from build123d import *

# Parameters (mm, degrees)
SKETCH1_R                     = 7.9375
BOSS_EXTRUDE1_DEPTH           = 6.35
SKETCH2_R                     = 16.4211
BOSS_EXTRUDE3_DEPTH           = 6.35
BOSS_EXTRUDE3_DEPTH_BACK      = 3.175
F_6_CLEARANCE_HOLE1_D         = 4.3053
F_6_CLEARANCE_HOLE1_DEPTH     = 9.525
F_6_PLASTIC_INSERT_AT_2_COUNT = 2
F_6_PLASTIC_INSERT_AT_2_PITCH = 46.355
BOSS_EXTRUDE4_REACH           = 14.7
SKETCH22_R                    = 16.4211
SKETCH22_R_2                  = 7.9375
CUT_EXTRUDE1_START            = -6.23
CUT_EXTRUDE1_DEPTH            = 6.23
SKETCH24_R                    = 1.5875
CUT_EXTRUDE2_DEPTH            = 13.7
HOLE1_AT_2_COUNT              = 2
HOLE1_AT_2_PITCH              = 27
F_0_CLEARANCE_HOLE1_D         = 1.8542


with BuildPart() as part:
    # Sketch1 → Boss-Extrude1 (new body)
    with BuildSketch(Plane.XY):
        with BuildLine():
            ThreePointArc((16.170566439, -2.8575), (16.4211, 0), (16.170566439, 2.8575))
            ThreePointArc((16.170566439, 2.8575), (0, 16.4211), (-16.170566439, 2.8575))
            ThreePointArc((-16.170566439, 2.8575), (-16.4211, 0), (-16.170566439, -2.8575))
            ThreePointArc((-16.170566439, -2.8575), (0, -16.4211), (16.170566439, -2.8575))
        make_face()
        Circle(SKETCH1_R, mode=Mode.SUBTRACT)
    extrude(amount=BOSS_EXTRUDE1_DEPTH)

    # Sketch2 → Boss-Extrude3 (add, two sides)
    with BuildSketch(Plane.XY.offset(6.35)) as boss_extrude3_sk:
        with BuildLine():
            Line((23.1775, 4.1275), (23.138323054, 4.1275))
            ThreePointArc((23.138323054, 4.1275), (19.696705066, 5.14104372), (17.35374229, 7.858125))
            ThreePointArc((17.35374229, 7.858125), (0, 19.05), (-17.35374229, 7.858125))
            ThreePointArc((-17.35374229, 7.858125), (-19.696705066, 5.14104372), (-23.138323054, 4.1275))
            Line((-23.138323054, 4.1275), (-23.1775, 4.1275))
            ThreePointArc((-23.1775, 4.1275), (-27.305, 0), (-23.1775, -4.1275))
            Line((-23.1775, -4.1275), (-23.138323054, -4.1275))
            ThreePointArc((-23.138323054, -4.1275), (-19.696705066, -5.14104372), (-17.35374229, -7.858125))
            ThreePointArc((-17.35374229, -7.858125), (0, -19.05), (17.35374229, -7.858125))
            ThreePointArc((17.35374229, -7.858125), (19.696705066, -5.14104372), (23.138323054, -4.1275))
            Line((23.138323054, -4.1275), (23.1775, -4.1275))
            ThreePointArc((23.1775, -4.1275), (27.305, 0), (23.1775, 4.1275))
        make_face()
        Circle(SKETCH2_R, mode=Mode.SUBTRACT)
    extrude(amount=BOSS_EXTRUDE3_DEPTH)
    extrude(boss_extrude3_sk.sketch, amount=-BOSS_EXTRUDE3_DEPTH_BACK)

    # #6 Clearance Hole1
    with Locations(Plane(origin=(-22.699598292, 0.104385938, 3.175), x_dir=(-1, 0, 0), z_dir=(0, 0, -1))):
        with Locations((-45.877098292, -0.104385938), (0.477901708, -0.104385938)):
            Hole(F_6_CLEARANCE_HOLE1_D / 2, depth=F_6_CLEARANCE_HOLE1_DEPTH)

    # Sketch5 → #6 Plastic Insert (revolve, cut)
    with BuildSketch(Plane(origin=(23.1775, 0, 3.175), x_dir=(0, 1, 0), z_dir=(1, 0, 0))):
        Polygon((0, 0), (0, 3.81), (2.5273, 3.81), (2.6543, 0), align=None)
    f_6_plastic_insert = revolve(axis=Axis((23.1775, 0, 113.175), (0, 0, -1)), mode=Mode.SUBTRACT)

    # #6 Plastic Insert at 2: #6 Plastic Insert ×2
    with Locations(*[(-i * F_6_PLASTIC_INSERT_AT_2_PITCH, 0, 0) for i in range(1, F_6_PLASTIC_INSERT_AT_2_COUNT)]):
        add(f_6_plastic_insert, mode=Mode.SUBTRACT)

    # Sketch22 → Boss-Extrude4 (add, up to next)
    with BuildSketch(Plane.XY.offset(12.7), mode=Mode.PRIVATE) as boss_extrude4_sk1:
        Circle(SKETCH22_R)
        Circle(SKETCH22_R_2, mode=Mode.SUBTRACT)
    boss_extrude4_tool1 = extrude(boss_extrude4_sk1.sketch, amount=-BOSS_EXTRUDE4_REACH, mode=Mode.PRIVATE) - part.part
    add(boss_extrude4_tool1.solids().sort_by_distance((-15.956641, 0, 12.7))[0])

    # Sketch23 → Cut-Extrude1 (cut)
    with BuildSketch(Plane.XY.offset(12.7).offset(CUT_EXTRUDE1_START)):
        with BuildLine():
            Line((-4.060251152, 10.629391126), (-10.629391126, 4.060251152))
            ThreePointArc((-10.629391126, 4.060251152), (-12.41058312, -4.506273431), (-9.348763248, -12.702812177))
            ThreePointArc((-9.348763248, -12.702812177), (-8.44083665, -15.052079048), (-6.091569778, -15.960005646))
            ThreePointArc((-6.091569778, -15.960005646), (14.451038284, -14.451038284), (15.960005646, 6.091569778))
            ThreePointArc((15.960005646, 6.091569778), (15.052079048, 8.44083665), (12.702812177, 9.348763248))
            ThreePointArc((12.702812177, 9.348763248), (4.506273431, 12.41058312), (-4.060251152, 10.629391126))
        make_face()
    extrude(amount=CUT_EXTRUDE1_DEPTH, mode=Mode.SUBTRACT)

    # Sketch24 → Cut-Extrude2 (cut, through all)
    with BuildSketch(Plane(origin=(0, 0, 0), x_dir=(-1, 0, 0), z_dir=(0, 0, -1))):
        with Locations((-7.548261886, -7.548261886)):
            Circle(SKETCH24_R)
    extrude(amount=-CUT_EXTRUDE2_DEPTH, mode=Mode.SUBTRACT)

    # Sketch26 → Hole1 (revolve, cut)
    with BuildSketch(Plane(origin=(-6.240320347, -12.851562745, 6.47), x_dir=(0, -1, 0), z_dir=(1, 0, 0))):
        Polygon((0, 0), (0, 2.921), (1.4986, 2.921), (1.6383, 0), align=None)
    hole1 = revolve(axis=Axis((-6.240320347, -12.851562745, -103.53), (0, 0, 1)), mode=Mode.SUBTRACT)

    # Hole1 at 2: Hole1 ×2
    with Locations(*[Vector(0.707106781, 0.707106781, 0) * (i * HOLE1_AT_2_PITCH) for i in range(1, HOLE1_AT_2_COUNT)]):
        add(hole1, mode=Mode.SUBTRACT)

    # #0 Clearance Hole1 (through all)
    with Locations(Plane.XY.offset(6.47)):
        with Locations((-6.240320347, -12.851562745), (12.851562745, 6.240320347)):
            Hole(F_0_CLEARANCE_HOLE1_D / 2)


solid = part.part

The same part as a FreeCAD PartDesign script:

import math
import FreeCAD as App
import Part
import Sketcher

V = App.Vector
Q = App.Units.Quantity

doc = App.newDocument("Part")
body = doc.addObject("PartDesign::Body", "Body")

sketch1 = doc.addObject("Sketcher::SketchObject", "Sketch")
body.addObject(sketch1)
sketch1.AttachmentSupport = (doc.XY_Plane, [""])
sketch1.MapMode = "FlatFace"
sketch1.addGeometry([
    Part.ArcOfCircle(Part.Circle(V(0, 0, 0), V(0, 0, 1), 16), math.radians(-10), math.radians(10)),
    Part.ArcOfCircle(Part.Circle(V(0, 0, 0), V(0, 0, 1), 16), math.radians(10), math.radians(170)),
    Part.ArcOfCircle(Part.Circle(V(0, 0, 0), V(0, 0, 1), 16), math.radians(170), math.radians(190)),
    Part.ArcOfCircle(Part.Circle(V(0, 0, 0), V(0, 0, 1), 16), math.radians(-170), math.radians(-10)),
    Part.Circle(V(0, 0, 0), V(0, 0, 1), 8),
], False)
sketch1.addConstraint([
    Sketcher.Constraint("Tangent", 0, 2, 1, 1),
    Sketcher.Constraint("Tangent", 1, 2, 2, 1),
    Sketcher.Constraint("Tangent", 2, 2, 3, 1),
    Sketcher.Constraint("Tangent", 3, 2, 0, 1),
    Sketcher.Constraint("Coincident", 0, 3, -1, 1),
    Sketcher.Constraint("Coincident", 4, 3, -1, 1),
    Sketcher.Constraint("Equal", 0, 1),
    Sketcher.Constraint("Horizontal", 0, 2, 1, 2),
    Sketcher.Constraint("Horizontal", 2, 2, 3, 2),
    Sketcher.Constraint("Vertical", 1, 2, 2, 2),
    Sketcher.Constraint("Diameter", 4, Q("0.625 in")),
    Sketcher.Constraint("Radius", 0, Q("0.6465 in")),
    Sketcher.Constraint("DistanceY", 2, 2, 1, 2, Q("0.225 in")),
])
pad1 = doc.addObject("PartDesign::Pad", "Pad")
body.addObject(pad1)
pad1.Profile = sketch1
pad1.Length = Q("0.25 in")

sketch2 = doc.addObject("Sketcher::SketchObject", "Sketch001")
body.addObject(sketch2)
sketch2.AttachmentSupport = (doc.XY_Plane, [""])
sketch2.MapMode = "FlatFace"
sketch2.AttachmentOffset = App.Placement(V(0, 0, 0.25 * 25.4), App.Rotation())
sketch2.addGeometry([
    Part.LineSegment(V(23.177, 4.128, 0), V(23.138, 4.128, 0)),
    Part.ArcOfCircle(Part.Circle(V(23.138, 10.477, 0), V(0, 0, 1), 6.35), math.radians(-156), math.radians(-90)),
    Part.ArcOfCircle(Part.Circle(V(0, 0, 0), V(0, 0, 1), 19.05), math.radians(24), math.radians(156)),
    Part.ArcOfCircle(Part.Circle(V(-23.138, 10.477, 0), V(0, 0, 1), 6.35), math.radians(-90), math.radians(-24)),
    Part.LineSegment(V(-23.138, 4.128, 0), V(-23.177, 4.128, 0)),
    Part.ArcOfCircle(Part.Circle(V(-23.177, 0, 0), V(0, 0, 1), 4.128), math.radians(90), math.radians(270)),
    Part.LineSegment(V(-23.177, -4.128, 0), V(-23.138, -4.128, 0)),
    Part.ArcOfCircle(Part.Circle(V(-23.138, -10.477, 0), V(0, 0, 1), 6.35), math.radians(24), math.radians(90)),
    Part.ArcOfCircle(Part.Circle(V(0, 0, 0), V(0, 0, 1), 19.05), math.radians(-156), math.radians(-24)),
    Part.ArcOfCircle(Part.Circle(V(23.138, -10.477, 0), V(0, 0, 1), 6.35), math.radians(90), math.radians(156)),
    Part.LineSegment(V(23.138, -4.128, 0), V(23.177, -4.128, 0)),
    Part.ArcOfCircle(Part.Circle(V(23.177, 0, 0), V(0, 0, 1), 4.128), math.radians(-90), math.radians(90)),
    Part.Circle(V(0, 0, 0), V(0, 0, 1), 16.421),
], False)
sketch2.addConstraint([
    Sketcher.Constraint("Tangent", 0, 2, 1, 2),
    Sketcher.Constraint("Tangent", 1, 1, 2, 1),
    Sketcher.Constraint("Tangent", 2, 2, 3, 2),
    Sketcher.Constraint("Tangent", 3, 1, 4, 1),
    Sketcher.Constraint("Tangent", 4, 2, 5, 1),
    Sketcher.Constraint("Tangent", 5, 2, 6, 1),
    Sketcher.Constraint("Tangent", 6, 2, 7, 2),
    Sketcher.Constraint("Tangent", 7, 1, 8, 1),
    Sketcher.Constraint("Tangent", 8, 2, 9, 2),
    Sketcher.Constraint("Tangent", 9, 1, 10, 1),
    Sketcher.Constraint("Tangent", 10, 2, 11, 1),
    Sketcher.Constraint("Tangent", 11, 2, 0, 1),
    Sketcher.Constraint("Horizontal", 0),
    Sketcher.Constraint("Horizontal", 4),
    Sketcher.Constraint("Horizontal", 6),
    Sketcher.Constraint("Horizontal", 10),
    Sketcher.Constraint("Coincident", 2, 3, -1, 1),
    Sketcher.Constraint("Coincident", 8, 3, -1, 1),
    Sketcher.Constraint("Coincident", 12, 3, -1, 1),
    Sketcher.Constraint("Equal", 1, 3),
    Sketcher.Constraint("Equal", 3, 7),
    Sketcher.Constraint("Equal", 2, 8),
    Sketcher.Constraint("Equal", 7, 9),
    Sketcher.Constraint("Equal", 5, 11),
    Sketcher.Constraint("Symmetric", 5, 3, 11, 3, -1, 1),
    Sketcher.Constraint("PointOnObject", 5, 3, -1),
    Sketcher.Constraint("Radius", 1, Q("0.25 in")),
    Sketcher.Constraint("Radius", 2, Q("0.75 in")),
    Sketcher.Constraint("Diameter", 12, Q("1.293 in")),
    Sketcher.Constraint("Radius", 5, Q("0.1625 in")),
    Sketcher.Constraint("DistanceX", 5, 3, 11, 3, Q("1.825 in")),
])
pad2 = doc.addObject("PartDesign::Pad", "Pad001")
body.addObject(pad2)
pad2.Profile = sketch2
pad2.Type = "TwoLengths"
pad2.Length = Q("0.25 in")
pad2.Length2 = Q("0.125 in")

sketch3 = doc.addObject("Sketcher::SketchObject", "Sketch002")
body.addObject(sketch3)
sketch3.AttachmentSupport = (doc.XY_Plane, [""])
sketch3.MapMode = "FlatFace"
sketch3.AttachmentOffset = App.Placement(V(0, 0, 0.125 * 25.4), App.Rotation())
sketch3.addGeometry([
    Part.Circle(V(23.2, 0, 0), V(0, 0, 1), 2.2),
    Part.Circle(V(-23.2, 0, 0), V(0, 0, 1), 2.2),
], False)
sketch3.addConstraint([
    Sketcher.Constraint("Equal", 0, 1),
    Sketcher.Constraint("Symmetric", 0, 3, 1, 3, -1, 1),
    Sketcher.Constraint("PointOnObject", 0, 3, -1),
    Sketcher.Constraint("Diameter", 0, Q("0.1695 in")),
    Sketcher.Constraint("DistanceX", 1, 3, 0, 3, Q("1.825 in")),
])
doc.recompute()
hole = doc.addObject("PartDesign::Hole", "Hole")
body.addObject(hole)
hole.Profile = sketch3
hole.ThreadType = "None"
hole.Diameter = Q("0.1695 in")
hole.DepthType = "Dimension"
hole.Depth = Q("0.375 in")
hole.DrillPoint = "Flat"
hole.Reversed = True

sketch4 = doc.addObject("Sketcher::SketchObject", "Sketch003")
body.addObject(sketch4)
sketch4.AttachmentSupport = (doc.YZ_Plane, [""])
sketch4.MapMode = "FlatFace"
sketch4.AttachmentOffset = App.Placement(V(0, 0, 0.9125 * 25.4), App.Rotation())
sketch4.addGeometry([
    Part.LineSegment(V(0, 7, 0), V(0, 3.2, 0)),
    Part.LineSegment(V(0, 3.2, 0), V(2.7, 3.2, 0)),
    Part.LineSegment(V(2.7, 3.2, 0), V(2.5, 7, 0)),
    Part.LineSegment(V(2.5, 7, 0), V(0, 7, 0)),
], False)
sketch4.addConstraint([
    Sketcher.Constraint("Coincident", 0, 2, 1, 1),
    Sketcher.Constraint("Coincident", 1, 2, 2, 1),
    Sketcher.Constraint("Coincident", 2, 2, 3, 1),
    Sketcher.Constraint("Coincident", 3, 2, 0, 1),
    Sketcher.Constraint("Vertical", 0),
    Sketcher.Constraint("Horizontal", 1),
    Sketcher.Constraint("Horizontal", 3),
    Sketcher.Constraint("PointOnObject", 0, 2, -2),
    Sketcher.Constraint("DistanceY", 0, 2, 0, 1, Q("0.15 in")),
    Sketcher.Constraint("DistanceX", 1, 1, 1, 2, Q("0.1045 in")),
    Sketcher.Constraint("DistanceX", 3, 2, 3, 1, Q("0.0995 in")),
    Sketcher.Constraint("DistanceY", -1, 1, 0, 2, Q("0.125 in")),
])
groove = doc.addObject("PartDesign::Groove", "Groove")
body.addObject(groove)
groove.Profile = sketch4
groove.ReferenceAxis = (sketch4, ["V_Axis"])
groove.Angle = 360
doc.recompute()

linearpattern = doc.addObject("PartDesign::LinearPattern", "LinearPattern")
body.addObject(linearpattern)
linearpattern.Originals = [groove]
linearpattern.Direction = (doc.X_Axis, [""])
linearpattern.Mode = "offset"
linearpattern.Offset = Q("1.825 in")
linearpattern.Occurrences = 2
linearpattern.Reversed = True
body.Tip = linearpattern

sketch5 = doc.addObject("Sketcher::SketchObject", "Sketch004")
body.addObject(sketch5)
sketch5.AttachmentSupport = (doc.XY_Plane, [""])
sketch5.MapMode = "FlatFace"
sketch5.AttachmentOffset = App.Placement(V(0, 0, 0.5 * 25.4), App.Rotation())
sketch5.addGeometry([
    Part.Circle(V(0, 0, 0), V(0, 0, 1), 16),
    Part.Circle(V(0, 0, 0), V(0, 0, 1), 8),
], False)
sketch5.addConstraint([
    Sketcher.Constraint("Coincident", 0, 3, -1, 1),
    Sketcher.Constraint("Coincident", 1, 3, -1, 1),
    Sketcher.Constraint("Diameter", 0, Q("1.293 in")),
    Sketcher.Constraint("Diameter", 1, Q("0.625 in")),
])
pad3 = doc.addObject("PartDesign::Pad", "Pad002")
body.addObject(pad3)
pad3.Profile = sketch5
pad3.Length = Q("0.25 in")
pad3.Reversed = True

sketch6 = doc.addObject("Sketcher::SketchObject", "Sketch005")
body.addObject(sketch6)
sketch6.AttachmentSupport = (doc.XY_Plane, [""])
sketch6.MapMode = "FlatFace"
sketch6.AttachmentOffset = App.Placement(V(0, 0, 6.47), App.Rotation())
sketch6.addGeometry([
    Part.LineSegment(V(-4.1, 10.6, 0), V(-10.6, 4.1, 0)),
    Part.ArcOfCircle(Part.Circle(V(3.3, -3.3, 0), V(0, 0, 1), 15.8), math.radians(152), math.radians(217)),
    Part.ArcOfCircle(Part.Circle(V(-6.2, -12.9, 0), V(0, 0, 1), 3.1), math.radians(177), math.radians(273)),
    Part.ArcOfCircle(Part.Circle(V(3.3, -3.3, 0), V(0, 0, 1), 15.8), math.radians(-127), math.radians(37)),
    Part.ArcOfCircle(Part.Circle(V(12.9, 6.2, 0), V(0, 0, 1), 3.1), math.radians(-3), math.radians(93)),
    Part.ArcOfCircle(Part.Circle(V(3.3, -3.3, 0), V(0, 0, 1), 15.8), math.radians(53), math.radians(118)),
], False)
sketch6.addConstraint([
    Sketcher.Constraint("Coincident", 0, 2, 1, 1),
    Sketcher.Constraint("Coincident", 1, 2, 2, 1),
    Sketcher.Constraint("Coincident", 2, 2, 3, 1),
    Sketcher.Constraint("Coincident", 3, 2, 4, 1),
    Sketcher.Constraint("Coincident", 4, 2, 5, 1),
    Sketcher.Constraint("Coincident", 5, 2, 0, 1),
    Sketcher.Constraint("Coincident", 3, 3, 1, 3),
    Sketcher.Constraint("Coincident", 5, 3, 1, 3),
    Sketcher.Constraint("Equal", 1, 3),
    Sketcher.Constraint("Equal", 2, 4),
    Sketcher.Constraint("Equal", 3, 5),
    Sketcher.Constraint("Angle", 0, Q("-135 deg")),
    Sketcher.Constraint("Radius", 1, 15.762),
    Sketcher.Constraint("Radius", 2, 3.112),
    Sketcher.Constraint("DistanceX", -1, 1, 1, 3, 3.305621),
    Sketcher.Constraint("DistanceY", 1, 3, -1, 1, 3.305621),
    Sketcher.Constraint("DistanceX", 2, 3, -1, 1, 6.24032),
    Sketcher.Constraint("DistanceY", -1, 1, 4, 3, 6.24032),
    Sketcher.Constraint("DistanceX", 0, 2, -1, 1, 10.629391),
    Sketcher.Constraint("DistanceX", 2, 2, -1, 1, 6.09157),
    Sketcher.Constraint("DistanceY", -1, 1, 3, 2, 6.09157),
])
pocket1 = doc.addObject("PartDesign::Pocket", "Pocket")
body.addObject(pocket1)
pocket1.Profile = sketch6
pocket1.Length = 6.23
pocket1.Reversed = True

sketch7 = doc.addObject("Sketcher::SketchObject", "Sketch006")
body.addObject(sketch7)
sketch7.AttachmentSupport = (doc.XY_Plane, [""])
sketch7.MapMode = "FlatFace"
sketch7.addGeometry(Part.Circle(V(7.5, -7.5, 0), V(0, 0, 1), 1.6), False)
sketch7.addConstraint([
    Sketcher.Constraint("Diameter", 0, Q("0.125 in")),
    Sketcher.Constraint("DistanceX", -1, 1, 0, 3, 7.548262),
    Sketcher.Constraint("DistanceY", 0, 3, -1, 1, 7.548262),
])
pocket2 = doc.addObject("PartDesign::Pocket", "Pocket001")
body.addObject(pocket2)
pocket2.Profile = sketch7
pocket2.Type = "ThroughAll"
pocket2.Reversed = True

sketch8 = doc.addObject("Sketcher::SketchObject", "Sketch007")
body.addObject(sketch8)
sketch8.AttachmentSupport = (doc.YZ_Plane, [""])
sketch8.MapMode = "FlatFace"
sketch8.AttachmentOffset = App.Placement(V(0, 0, -6.24032), App.Rotation())
sketch8.addGeometry([
    Part.LineSegment(V(-12.9, 3.5, 0), V(-12.9, 6.5, 0)),
    Part.LineSegment(V(-12.9, 6.5, 0), V(-14.5, 6.5, 0)),
    Part.LineSegment(V(-14.5, 6.5, 0), V(-14.4, 3.5, 0)),
    Part.LineSegment(V(-14.4, 3.5, 0), V(-12.9, 3.5, 0)),
], False)
sketch8.addGeometry(Part.LineSegment(V(-12.9, 3.5, 0), V(-12.9, 6.5, 0)), True)
sketch8.addConstraint([
    Sketcher.Constraint("Coincident", 0, 2, 1, 1),
    Sketcher.Constraint("Coincident", 1, 2, 2, 1),
    Sketcher.Constraint("Coincident", 2, 2, 3, 1),
    Sketcher.Constraint("Coincident", 3, 2, 0, 1),
    Sketcher.Constraint("Vertical", 0),
    Sketcher.Constraint("Horizontal", 1),
    Sketcher.Constraint("Horizontal", 3),
    Sketcher.Constraint("Vertical", 4),
    Sketcher.Constraint("Coincident", 4, 1, 3, 2),
    Sketcher.Constraint("Horizontal", 1, 2, 4, 2),
    Sketcher.Constraint("DistanceX", 3, 1, 3, 2, Q("0.059 in")),
    Sketcher.Constraint("DistanceY", 0, 1, 0, 2, Q("0.115 in")),
    Sketcher.Constraint("DistanceX", 1, 2, 1, 1, Q("0.0645 in")),
    Sketcher.Constraint("DistanceY", -1, 1, 0, 2, 6.47),
    Sketcher.Constraint("DistanceX", 0, 2, -1, 1, 12.851563),
])
groove2 = doc.addObject("PartDesign::Groove", "Groove001")
body.addObject(groove2)
groove2.Profile = sketch8
groove2.ReferenceAxis = (sketch8, ["Axis0"])
groove2.Angle = 360
doc.recompute()

datumline = doc.addObject("PartDesign::Line", "DatumLine")
body.addObject(datumline)
datumline.Placement = App.Placement(V(0, 0, 0), App.Rotation(V(0, 0, 1), V(0.707106781, 0.707106781, 0)))
linearpattern2 = doc.addObject("PartDesign::LinearPattern", "LinearPattern001")
body.addObject(linearpattern2)
linearpattern2.Originals = [groove2]
linearpattern2.Direction = (datumline, [""])
linearpattern2.Mode = "offset"
linearpattern2.Offset = 27
linearpattern2.Occurrences = 2
body.Tip = linearpattern2

sketch9 = doc.addObject("Sketcher::SketchObject", "Sketch008")
body.addObject(sketch9)
sketch9.AttachmentSupport = (doc.XY_Plane, [""])
sketch9.MapMode = "FlatFace"
sketch9.AttachmentOffset = App.Placement(V(0, 0, 6.47), App.Rotation())
sketch9.addGeometry([
    Part.Circle(V(-6.2, -12.9, 0), V(0, 0, 1), 0.9),
    Part.Circle(V(12.9, 6.2, 0), V(0, 0, 1), 0.9),
], False)
sketch9.addConstraint([
    Sketcher.Constraint("Equal", 0, 1),
    Sketcher.Constraint("Diameter", 0, Q("0.073 in")),
    Sketcher.Constraint("DistanceX", 0, 3, -1, 1, 6.24032),
    Sketcher.Constraint("DistanceY", -1, 1, 1, 3, 6.24032),
    Sketcher.Constraint("DistanceY", 0, 3, -1, 1, 12.851563),
    Sketcher.Constraint("DistanceX", -1, 1, 1, 3, 12.851563),
])
doc.recompute()
hole2 = doc.addObject("PartDesign::Hole", "Hole001")
body.addObject(hole2)
hole2.Profile = sketch9
hole2.ThreadType = "None"
hole2.Diameter = Q("0.073 in")
hole2.DepthType = "ThroughAll"

doc.recompute()
